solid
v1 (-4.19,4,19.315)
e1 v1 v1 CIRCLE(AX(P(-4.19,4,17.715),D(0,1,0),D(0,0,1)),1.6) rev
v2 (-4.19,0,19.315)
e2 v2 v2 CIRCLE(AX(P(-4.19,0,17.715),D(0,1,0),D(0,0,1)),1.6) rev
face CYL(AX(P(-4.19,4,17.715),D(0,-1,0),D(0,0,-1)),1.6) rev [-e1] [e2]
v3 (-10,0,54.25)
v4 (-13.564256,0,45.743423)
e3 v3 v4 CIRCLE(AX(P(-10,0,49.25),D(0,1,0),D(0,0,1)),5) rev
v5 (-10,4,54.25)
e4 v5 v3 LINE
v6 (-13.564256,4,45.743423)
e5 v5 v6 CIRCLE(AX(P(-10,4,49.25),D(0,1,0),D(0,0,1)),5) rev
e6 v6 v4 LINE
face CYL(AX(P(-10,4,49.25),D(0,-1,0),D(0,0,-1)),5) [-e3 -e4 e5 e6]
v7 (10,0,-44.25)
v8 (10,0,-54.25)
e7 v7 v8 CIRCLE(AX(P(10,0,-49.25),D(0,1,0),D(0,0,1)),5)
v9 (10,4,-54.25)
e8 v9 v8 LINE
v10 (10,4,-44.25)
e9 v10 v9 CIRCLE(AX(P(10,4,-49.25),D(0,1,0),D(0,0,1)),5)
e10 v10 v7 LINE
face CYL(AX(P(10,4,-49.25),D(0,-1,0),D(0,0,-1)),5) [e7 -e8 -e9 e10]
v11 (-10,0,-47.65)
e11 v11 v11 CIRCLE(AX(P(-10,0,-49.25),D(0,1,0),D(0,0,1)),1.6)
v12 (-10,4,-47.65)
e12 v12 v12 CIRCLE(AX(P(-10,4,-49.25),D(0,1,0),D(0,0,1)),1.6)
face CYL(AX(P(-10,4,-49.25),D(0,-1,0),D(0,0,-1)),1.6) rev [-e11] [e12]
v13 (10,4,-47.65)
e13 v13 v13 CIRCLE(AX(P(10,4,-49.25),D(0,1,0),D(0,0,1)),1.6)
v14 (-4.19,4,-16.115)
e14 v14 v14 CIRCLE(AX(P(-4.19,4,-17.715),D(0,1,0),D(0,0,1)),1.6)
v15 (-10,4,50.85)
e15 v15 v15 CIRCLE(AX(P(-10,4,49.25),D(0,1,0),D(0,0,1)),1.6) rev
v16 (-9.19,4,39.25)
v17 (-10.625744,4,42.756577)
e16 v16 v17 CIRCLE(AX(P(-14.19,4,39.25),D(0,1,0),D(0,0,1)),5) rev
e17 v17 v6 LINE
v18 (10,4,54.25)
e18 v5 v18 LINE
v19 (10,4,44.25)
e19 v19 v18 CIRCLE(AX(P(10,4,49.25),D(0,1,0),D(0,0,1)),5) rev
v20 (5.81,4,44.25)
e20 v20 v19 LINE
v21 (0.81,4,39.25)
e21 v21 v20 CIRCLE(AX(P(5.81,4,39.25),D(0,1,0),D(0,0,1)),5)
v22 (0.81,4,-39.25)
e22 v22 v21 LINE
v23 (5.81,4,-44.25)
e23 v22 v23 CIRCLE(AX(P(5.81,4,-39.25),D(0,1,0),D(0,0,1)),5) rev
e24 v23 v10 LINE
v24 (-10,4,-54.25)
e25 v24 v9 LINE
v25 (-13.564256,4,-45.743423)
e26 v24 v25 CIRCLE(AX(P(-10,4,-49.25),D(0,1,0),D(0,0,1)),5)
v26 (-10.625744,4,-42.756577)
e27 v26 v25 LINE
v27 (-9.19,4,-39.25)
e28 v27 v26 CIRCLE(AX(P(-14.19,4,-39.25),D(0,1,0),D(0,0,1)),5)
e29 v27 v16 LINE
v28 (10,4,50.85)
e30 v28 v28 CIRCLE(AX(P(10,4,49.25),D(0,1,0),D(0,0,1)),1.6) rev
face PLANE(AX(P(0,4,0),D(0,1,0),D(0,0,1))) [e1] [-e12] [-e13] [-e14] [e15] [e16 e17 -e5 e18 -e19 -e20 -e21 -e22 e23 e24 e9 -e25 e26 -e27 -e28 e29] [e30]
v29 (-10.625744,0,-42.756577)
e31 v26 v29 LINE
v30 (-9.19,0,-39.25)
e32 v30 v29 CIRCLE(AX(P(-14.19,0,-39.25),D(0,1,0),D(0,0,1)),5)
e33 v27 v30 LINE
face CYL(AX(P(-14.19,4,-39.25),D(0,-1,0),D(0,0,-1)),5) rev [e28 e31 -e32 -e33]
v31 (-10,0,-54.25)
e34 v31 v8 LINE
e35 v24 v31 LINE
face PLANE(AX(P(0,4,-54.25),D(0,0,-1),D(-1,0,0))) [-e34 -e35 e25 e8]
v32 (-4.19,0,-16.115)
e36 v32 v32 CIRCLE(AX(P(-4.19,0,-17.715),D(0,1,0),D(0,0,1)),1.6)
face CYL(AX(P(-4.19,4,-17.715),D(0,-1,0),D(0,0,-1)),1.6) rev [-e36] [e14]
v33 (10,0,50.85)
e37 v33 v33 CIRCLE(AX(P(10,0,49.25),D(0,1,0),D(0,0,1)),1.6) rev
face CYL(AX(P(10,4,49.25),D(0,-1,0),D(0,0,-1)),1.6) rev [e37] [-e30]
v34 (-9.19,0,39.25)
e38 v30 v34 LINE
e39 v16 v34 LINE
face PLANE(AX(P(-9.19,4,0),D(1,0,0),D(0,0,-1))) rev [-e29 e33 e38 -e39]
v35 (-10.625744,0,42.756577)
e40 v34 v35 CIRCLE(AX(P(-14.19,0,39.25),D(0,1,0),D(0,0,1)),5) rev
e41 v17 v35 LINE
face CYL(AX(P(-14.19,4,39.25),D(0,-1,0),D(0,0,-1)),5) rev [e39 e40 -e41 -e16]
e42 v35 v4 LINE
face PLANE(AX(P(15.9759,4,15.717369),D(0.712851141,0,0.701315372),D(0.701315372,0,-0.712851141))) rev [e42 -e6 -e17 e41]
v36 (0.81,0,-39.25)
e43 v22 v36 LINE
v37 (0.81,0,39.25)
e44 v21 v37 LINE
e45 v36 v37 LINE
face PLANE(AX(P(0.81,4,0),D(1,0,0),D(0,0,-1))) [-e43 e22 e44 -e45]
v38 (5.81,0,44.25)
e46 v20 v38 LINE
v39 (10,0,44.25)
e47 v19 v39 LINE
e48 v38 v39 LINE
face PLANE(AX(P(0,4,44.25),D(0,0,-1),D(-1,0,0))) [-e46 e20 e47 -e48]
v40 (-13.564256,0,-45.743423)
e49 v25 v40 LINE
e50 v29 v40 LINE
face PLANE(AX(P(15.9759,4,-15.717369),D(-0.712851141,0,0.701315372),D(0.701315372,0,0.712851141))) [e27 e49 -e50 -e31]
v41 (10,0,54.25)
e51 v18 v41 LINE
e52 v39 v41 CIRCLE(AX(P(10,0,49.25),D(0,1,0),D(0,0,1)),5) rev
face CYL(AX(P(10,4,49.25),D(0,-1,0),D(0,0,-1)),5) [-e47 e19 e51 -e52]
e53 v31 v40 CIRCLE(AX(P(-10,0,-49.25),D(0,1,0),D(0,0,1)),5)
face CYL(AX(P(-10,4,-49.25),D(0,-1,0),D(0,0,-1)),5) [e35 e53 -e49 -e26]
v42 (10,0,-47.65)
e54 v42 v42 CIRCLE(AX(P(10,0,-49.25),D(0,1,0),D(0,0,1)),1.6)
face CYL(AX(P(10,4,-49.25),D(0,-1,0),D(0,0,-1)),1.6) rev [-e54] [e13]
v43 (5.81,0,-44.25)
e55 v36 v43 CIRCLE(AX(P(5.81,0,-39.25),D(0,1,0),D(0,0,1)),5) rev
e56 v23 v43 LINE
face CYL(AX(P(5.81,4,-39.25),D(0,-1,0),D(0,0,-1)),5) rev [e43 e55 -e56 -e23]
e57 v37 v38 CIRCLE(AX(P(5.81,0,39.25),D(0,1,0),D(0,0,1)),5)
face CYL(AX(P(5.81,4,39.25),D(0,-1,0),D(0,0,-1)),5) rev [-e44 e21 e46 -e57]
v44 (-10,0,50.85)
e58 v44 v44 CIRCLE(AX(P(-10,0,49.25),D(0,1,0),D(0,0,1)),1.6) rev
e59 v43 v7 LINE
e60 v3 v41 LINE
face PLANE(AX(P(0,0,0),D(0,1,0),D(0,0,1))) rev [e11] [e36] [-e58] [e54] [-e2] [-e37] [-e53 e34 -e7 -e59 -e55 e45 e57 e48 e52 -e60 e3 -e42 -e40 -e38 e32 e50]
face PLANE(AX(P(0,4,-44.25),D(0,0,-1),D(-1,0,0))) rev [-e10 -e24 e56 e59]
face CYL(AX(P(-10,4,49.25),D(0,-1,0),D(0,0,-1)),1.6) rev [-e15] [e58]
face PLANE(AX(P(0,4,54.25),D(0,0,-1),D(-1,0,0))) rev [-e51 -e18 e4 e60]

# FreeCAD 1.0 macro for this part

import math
import FreeCAD as App
import Part
import Sketcher
from FreeCAD import Vector
Q = App.Units.Quantity

doc = App.newDocument("Part")
body = doc.addObject("PartDesign::Body", "Body")

# Sketch on XZ plane
sketch1 = body.newObject("Sketcher::SketchObject", "Sketch")
sketch1.AttachmentSupport = (doc.getObject("XZ_Plane"), [""])
sketch1.MapMode = "FlatFace"
sketch1.addGeometry(Part.LineSegment(Vector(10, -54.2, 0), Vector(-10, -54.2, 0)), False)
sketch1.addGeometry(Part.ArcOfCircle(Part.Circle(Vector(-10, -49.2, 0), Vector(0, 0, 1), 5), math.radians(135), math.radians(270)), False)
sketch1.addGeometry(Part.LineSegment(Vector(-13.6, -45.7, 0), Vector(-10.6, -42.8, 0)), False)
sketch1.addGeometry(Part.ArcOfCircle(Part.Circle(Vector(-14.2, -39.2, 0), Vector(0, 0, 1), 5), math.radians(-45), math.radians(0)), False)
sketch1.addGeometry(Part.LineSegment(Vector(-9.2, -39.2, 0), Vector(-9.2, 39.2, 0)), False)
sketch1.addGeometry(Part.ArcOfCircle(Part.Circle(Vector(-14.2, 39.2, 0), Vector(0, 0, 1), 5), math.radians(0), math.radians(45)), False)
sketch1.addGeometry(Part.LineSegment(Vector(-10.6, 42.8, 0), Vector(-13.6, 45.7, 0)), False)
sketch1.addGeometry(Part.ArcOfCircle(Part.Circle(Vector(-10, 49.2, 0), Vector(0, 0, 1), 5), math.radians(90), math.radians(225)), False)
sketch1.addGeometry(Part.LineSegment(Vector(-10, 54.2, 0), Vector(10, 54.2, 0)), False)
sketch1.addGeometry(Part.ArcOfCircle(Part.Circle(Vector(10, 49.2, 0), Vector(0, 0, 1), 5), math.radians(-90), math.radians(90)), False)
sketch1.addGeometry(Part.LineSegment(Vector(10, 44.2, 0), Vector(5.8, 44.2, 0)), False)
sketch1.addGeometry(Part.ArcOfCircle(Part.Circle(Vector(5.8, 39.2, 0), Vector(0, 0, 1), 5), math.radians(90), math.radians(180)), False)
sketch1.addGeometry(Part.LineSegment(Vector(0.8, 39.2, 0), Vector(0.8, -39.2, 0)), False)
sketch1.addGeometry(Part.ArcOfCircle(Part.Circle(Vector(5.8, -39.2, 0), Vector(0, 0, 1), 5), math.radians(180), math.radians(270)), False)
sketch1.addGeometry(Part.LineSegment(Vector(5.8, -44.2, 0), Vector(10, -44.2, 0)), False)
sketch1.addGeometry(Part.ArcOfCircle(Part.Circle(Vector(10, -49.2, 0), Vector(0, 0, 1), 5), math.radians(-90), math.radians(90)), False)
sketch1.addGeometry(Part.Circle(Vector(-10, 49.2, 0), Vector(0, 0, 1), 1.6), False)
sketch1.addGeometry(Part.Circle(Vector(-4.2, 17.7, 0), Vector(0, 0, 1), 1.6), False)
sketch1.addGeometry(Part.Circle(Vector(10, 49.2, 0), Vector(0, 0, 1), 1.6), False)
sketch1.addGeometry(Part.Circle(Vector(-4.2, -17.7, 0), Vector(0, 0, 1), 1.6), False)
sketch1.addGeometry(Part.Circle(Vector(-10, -49.2, 0), Vector(0, 0, 1), 1.6), False)
sketch1.addGeometry(Part.Circle(Vector(10, -49.2, 0), Vector(0, 0, 1), 1.6), False)
sketch1.addConstraint(Sketcher.Constraint("Tangent", 0, 2, 1, 2))
sketch1.addConstraint(Sketcher.Constraint("Tangent", 1, 1, 2, 1))
sketch1.addConstraint(Sketcher.Constraint("Tangent", 2, 2, 3, 1))
sketch1.addConstraint(Sketcher.Constraint("Tangent", 3, 2, 4, 1))
sketch1.addConstraint(Sketcher.Constraint("Tangent", 4, 2, 5, 1))
sketch1.addConstraint(Sketcher.Constraint("Tangent", 5, 2, 6, 1))
sketch1.addConstraint(Sketcher.Constraint("Tangent", 6, 2, 7, 2))
sketch1.addConstraint(Sketcher.Constraint("Tangent", 7, 1, 8, 1))
sketch1.addConstraint(Sketcher.Constraint("Tangent", 8, 2, 9, 2))
sketch1.addConstraint(Sketcher.Constraint("Tangent", 9, 1, 10, 1))
sketch1.addConstraint(Sketcher.Constraint("Tangent", 10, 2, 11, 1))
sketch1.addConstraint(Sketcher.Constraint("Tangent", 11, 2, 12, 1))
sketch1.addConstraint(Sketcher.Constraint("Tangent", 12, 2, 13, 1))
sketch1.addConstraint(Sketcher.Constraint("Tangent", 13, 2, 14, 1))
sketch1.addConstraint(Sketcher.Constraint("Tangent", 14, 2, 15, 2))
sketch1.addConstraint(Sketcher.Constraint("Tangent", 15, 1, 0, 1))
sketch1.addConstraint(Sketcher.Constraint("Horizontal", 0))
sketch1.addConstraint(Sketcher.Constraint("Vertical", 4))
sketch1.addConstraint(Sketcher.Constraint("Horizontal", 8))
sketch1.addConstraint(Sketcher.Constraint("Horizontal", 10))
sketch1.addConstraint(Sketcher.Constraint("Vertical", 12))
sketch1.addConstraint(Sketcher.Constraint("Horizontal", 14))
sketch1.addConstraint(Sketcher.Constraint("Coincident", 16, 3, 7, 3))
sketch1.addConstraint(Sketcher.Constraint("Coincident", 18, 3, 9, 3))
sketch1.addConstraint(Sketcher.Constraint("Coincident", 20, 3, 1, 3))
sketch1.addConstraint(Sketcher.Constraint("Coincident", 21, 3, 15, 3))
sketch1.addConstraint(Sketcher.Constraint("Equal", 1, 3))
sketch1.addConstraint(Sketcher.Constraint("Equal", 3, 5))
sketch1.addConstraint(Sketcher.Constraint("Equal", 5, 7))
sketch1.addConstraint(Sketcher.Constraint("Equal", 7, 9))
sketch1.addConstraint(Sketcher.Constraint("Equal", 9, 11))
sketch1.addConstraint(Sketcher.Constraint("Equal", 11, 13))
sketch1.addConstraint(Sketcher.Constraint("Equal", 13, 15))
sketch1.addConstraint(Sketcher.Constraint("Equal", 16, 17))
sketch1.addConstraint(Sketcher.Constraint("Equal", 17, 18))
sketch1.addConstraint(Sketcher.Constraint("Equal", 18, 19))
sketch1.addConstraint(Sketcher.Constraint("Equal", 19, 20))
sketch1.addConstraint(Sketcher.Constraint("Equal", 20, 21))
sketch1.addConstraint(Sketcher.Constraint("Symmetric", 1, 3, 9, 3, -1, 1))
sketch1.addConstraint(Sketcher.Constraint("Symmetric", 17, 3, 19, 3, -1))
sketch1.addConstraint(Sketcher.Constraint("Symmetric", 2, 2, 5, 2, -1))
sketch1.addConstraint(Sketcher.Constraint("Horizontal", 5, 3, 11, 3))
sketch1.addConstraint(Sketcher.Constraint("Vertical", 9, 3, 15, 3))
sketch1.addConstraint(Sketcher.Constraint("Radius", 1, Q("5 mm")))
sketch1.addConstraint(Sketcher.Constraint("Diameter", 16, Q("3.2 mm")))
sketch1.addConstraint(Sketcher.Constraint("DistanceX", 0, 2, 0, 1, Q("20 mm")))
sketch1.addConstraint(Sketcher.Constraint("DistanceY", 4, 1, 4, 2, Q("78.5 mm")))
sketch1.addConstraint(Sketcher.Constraint("DistanceX", 5, 3, 11, 3, Q("20 mm")))
sketch1.addConstraint(Sketcher.Constraint("DistanceX", 5, 3, 17, 3, Q("10 mm")))
sketch1.addConstraint(Sketcher.Constraint("DistanceX", 10, 2, 10, 1, Q("4.19 mm")))
sketch1.addConstraint(Sketcher.Constraint("DistanceY", 19, 3, 17, 3, Q("35.43 mm")))
pad1 = body.newObject("PartDesign::Pad", "Pad")
pad1.Profile = sketch1
pad1.Length = 4
pad1.Reversed = True

doc.recompute()
